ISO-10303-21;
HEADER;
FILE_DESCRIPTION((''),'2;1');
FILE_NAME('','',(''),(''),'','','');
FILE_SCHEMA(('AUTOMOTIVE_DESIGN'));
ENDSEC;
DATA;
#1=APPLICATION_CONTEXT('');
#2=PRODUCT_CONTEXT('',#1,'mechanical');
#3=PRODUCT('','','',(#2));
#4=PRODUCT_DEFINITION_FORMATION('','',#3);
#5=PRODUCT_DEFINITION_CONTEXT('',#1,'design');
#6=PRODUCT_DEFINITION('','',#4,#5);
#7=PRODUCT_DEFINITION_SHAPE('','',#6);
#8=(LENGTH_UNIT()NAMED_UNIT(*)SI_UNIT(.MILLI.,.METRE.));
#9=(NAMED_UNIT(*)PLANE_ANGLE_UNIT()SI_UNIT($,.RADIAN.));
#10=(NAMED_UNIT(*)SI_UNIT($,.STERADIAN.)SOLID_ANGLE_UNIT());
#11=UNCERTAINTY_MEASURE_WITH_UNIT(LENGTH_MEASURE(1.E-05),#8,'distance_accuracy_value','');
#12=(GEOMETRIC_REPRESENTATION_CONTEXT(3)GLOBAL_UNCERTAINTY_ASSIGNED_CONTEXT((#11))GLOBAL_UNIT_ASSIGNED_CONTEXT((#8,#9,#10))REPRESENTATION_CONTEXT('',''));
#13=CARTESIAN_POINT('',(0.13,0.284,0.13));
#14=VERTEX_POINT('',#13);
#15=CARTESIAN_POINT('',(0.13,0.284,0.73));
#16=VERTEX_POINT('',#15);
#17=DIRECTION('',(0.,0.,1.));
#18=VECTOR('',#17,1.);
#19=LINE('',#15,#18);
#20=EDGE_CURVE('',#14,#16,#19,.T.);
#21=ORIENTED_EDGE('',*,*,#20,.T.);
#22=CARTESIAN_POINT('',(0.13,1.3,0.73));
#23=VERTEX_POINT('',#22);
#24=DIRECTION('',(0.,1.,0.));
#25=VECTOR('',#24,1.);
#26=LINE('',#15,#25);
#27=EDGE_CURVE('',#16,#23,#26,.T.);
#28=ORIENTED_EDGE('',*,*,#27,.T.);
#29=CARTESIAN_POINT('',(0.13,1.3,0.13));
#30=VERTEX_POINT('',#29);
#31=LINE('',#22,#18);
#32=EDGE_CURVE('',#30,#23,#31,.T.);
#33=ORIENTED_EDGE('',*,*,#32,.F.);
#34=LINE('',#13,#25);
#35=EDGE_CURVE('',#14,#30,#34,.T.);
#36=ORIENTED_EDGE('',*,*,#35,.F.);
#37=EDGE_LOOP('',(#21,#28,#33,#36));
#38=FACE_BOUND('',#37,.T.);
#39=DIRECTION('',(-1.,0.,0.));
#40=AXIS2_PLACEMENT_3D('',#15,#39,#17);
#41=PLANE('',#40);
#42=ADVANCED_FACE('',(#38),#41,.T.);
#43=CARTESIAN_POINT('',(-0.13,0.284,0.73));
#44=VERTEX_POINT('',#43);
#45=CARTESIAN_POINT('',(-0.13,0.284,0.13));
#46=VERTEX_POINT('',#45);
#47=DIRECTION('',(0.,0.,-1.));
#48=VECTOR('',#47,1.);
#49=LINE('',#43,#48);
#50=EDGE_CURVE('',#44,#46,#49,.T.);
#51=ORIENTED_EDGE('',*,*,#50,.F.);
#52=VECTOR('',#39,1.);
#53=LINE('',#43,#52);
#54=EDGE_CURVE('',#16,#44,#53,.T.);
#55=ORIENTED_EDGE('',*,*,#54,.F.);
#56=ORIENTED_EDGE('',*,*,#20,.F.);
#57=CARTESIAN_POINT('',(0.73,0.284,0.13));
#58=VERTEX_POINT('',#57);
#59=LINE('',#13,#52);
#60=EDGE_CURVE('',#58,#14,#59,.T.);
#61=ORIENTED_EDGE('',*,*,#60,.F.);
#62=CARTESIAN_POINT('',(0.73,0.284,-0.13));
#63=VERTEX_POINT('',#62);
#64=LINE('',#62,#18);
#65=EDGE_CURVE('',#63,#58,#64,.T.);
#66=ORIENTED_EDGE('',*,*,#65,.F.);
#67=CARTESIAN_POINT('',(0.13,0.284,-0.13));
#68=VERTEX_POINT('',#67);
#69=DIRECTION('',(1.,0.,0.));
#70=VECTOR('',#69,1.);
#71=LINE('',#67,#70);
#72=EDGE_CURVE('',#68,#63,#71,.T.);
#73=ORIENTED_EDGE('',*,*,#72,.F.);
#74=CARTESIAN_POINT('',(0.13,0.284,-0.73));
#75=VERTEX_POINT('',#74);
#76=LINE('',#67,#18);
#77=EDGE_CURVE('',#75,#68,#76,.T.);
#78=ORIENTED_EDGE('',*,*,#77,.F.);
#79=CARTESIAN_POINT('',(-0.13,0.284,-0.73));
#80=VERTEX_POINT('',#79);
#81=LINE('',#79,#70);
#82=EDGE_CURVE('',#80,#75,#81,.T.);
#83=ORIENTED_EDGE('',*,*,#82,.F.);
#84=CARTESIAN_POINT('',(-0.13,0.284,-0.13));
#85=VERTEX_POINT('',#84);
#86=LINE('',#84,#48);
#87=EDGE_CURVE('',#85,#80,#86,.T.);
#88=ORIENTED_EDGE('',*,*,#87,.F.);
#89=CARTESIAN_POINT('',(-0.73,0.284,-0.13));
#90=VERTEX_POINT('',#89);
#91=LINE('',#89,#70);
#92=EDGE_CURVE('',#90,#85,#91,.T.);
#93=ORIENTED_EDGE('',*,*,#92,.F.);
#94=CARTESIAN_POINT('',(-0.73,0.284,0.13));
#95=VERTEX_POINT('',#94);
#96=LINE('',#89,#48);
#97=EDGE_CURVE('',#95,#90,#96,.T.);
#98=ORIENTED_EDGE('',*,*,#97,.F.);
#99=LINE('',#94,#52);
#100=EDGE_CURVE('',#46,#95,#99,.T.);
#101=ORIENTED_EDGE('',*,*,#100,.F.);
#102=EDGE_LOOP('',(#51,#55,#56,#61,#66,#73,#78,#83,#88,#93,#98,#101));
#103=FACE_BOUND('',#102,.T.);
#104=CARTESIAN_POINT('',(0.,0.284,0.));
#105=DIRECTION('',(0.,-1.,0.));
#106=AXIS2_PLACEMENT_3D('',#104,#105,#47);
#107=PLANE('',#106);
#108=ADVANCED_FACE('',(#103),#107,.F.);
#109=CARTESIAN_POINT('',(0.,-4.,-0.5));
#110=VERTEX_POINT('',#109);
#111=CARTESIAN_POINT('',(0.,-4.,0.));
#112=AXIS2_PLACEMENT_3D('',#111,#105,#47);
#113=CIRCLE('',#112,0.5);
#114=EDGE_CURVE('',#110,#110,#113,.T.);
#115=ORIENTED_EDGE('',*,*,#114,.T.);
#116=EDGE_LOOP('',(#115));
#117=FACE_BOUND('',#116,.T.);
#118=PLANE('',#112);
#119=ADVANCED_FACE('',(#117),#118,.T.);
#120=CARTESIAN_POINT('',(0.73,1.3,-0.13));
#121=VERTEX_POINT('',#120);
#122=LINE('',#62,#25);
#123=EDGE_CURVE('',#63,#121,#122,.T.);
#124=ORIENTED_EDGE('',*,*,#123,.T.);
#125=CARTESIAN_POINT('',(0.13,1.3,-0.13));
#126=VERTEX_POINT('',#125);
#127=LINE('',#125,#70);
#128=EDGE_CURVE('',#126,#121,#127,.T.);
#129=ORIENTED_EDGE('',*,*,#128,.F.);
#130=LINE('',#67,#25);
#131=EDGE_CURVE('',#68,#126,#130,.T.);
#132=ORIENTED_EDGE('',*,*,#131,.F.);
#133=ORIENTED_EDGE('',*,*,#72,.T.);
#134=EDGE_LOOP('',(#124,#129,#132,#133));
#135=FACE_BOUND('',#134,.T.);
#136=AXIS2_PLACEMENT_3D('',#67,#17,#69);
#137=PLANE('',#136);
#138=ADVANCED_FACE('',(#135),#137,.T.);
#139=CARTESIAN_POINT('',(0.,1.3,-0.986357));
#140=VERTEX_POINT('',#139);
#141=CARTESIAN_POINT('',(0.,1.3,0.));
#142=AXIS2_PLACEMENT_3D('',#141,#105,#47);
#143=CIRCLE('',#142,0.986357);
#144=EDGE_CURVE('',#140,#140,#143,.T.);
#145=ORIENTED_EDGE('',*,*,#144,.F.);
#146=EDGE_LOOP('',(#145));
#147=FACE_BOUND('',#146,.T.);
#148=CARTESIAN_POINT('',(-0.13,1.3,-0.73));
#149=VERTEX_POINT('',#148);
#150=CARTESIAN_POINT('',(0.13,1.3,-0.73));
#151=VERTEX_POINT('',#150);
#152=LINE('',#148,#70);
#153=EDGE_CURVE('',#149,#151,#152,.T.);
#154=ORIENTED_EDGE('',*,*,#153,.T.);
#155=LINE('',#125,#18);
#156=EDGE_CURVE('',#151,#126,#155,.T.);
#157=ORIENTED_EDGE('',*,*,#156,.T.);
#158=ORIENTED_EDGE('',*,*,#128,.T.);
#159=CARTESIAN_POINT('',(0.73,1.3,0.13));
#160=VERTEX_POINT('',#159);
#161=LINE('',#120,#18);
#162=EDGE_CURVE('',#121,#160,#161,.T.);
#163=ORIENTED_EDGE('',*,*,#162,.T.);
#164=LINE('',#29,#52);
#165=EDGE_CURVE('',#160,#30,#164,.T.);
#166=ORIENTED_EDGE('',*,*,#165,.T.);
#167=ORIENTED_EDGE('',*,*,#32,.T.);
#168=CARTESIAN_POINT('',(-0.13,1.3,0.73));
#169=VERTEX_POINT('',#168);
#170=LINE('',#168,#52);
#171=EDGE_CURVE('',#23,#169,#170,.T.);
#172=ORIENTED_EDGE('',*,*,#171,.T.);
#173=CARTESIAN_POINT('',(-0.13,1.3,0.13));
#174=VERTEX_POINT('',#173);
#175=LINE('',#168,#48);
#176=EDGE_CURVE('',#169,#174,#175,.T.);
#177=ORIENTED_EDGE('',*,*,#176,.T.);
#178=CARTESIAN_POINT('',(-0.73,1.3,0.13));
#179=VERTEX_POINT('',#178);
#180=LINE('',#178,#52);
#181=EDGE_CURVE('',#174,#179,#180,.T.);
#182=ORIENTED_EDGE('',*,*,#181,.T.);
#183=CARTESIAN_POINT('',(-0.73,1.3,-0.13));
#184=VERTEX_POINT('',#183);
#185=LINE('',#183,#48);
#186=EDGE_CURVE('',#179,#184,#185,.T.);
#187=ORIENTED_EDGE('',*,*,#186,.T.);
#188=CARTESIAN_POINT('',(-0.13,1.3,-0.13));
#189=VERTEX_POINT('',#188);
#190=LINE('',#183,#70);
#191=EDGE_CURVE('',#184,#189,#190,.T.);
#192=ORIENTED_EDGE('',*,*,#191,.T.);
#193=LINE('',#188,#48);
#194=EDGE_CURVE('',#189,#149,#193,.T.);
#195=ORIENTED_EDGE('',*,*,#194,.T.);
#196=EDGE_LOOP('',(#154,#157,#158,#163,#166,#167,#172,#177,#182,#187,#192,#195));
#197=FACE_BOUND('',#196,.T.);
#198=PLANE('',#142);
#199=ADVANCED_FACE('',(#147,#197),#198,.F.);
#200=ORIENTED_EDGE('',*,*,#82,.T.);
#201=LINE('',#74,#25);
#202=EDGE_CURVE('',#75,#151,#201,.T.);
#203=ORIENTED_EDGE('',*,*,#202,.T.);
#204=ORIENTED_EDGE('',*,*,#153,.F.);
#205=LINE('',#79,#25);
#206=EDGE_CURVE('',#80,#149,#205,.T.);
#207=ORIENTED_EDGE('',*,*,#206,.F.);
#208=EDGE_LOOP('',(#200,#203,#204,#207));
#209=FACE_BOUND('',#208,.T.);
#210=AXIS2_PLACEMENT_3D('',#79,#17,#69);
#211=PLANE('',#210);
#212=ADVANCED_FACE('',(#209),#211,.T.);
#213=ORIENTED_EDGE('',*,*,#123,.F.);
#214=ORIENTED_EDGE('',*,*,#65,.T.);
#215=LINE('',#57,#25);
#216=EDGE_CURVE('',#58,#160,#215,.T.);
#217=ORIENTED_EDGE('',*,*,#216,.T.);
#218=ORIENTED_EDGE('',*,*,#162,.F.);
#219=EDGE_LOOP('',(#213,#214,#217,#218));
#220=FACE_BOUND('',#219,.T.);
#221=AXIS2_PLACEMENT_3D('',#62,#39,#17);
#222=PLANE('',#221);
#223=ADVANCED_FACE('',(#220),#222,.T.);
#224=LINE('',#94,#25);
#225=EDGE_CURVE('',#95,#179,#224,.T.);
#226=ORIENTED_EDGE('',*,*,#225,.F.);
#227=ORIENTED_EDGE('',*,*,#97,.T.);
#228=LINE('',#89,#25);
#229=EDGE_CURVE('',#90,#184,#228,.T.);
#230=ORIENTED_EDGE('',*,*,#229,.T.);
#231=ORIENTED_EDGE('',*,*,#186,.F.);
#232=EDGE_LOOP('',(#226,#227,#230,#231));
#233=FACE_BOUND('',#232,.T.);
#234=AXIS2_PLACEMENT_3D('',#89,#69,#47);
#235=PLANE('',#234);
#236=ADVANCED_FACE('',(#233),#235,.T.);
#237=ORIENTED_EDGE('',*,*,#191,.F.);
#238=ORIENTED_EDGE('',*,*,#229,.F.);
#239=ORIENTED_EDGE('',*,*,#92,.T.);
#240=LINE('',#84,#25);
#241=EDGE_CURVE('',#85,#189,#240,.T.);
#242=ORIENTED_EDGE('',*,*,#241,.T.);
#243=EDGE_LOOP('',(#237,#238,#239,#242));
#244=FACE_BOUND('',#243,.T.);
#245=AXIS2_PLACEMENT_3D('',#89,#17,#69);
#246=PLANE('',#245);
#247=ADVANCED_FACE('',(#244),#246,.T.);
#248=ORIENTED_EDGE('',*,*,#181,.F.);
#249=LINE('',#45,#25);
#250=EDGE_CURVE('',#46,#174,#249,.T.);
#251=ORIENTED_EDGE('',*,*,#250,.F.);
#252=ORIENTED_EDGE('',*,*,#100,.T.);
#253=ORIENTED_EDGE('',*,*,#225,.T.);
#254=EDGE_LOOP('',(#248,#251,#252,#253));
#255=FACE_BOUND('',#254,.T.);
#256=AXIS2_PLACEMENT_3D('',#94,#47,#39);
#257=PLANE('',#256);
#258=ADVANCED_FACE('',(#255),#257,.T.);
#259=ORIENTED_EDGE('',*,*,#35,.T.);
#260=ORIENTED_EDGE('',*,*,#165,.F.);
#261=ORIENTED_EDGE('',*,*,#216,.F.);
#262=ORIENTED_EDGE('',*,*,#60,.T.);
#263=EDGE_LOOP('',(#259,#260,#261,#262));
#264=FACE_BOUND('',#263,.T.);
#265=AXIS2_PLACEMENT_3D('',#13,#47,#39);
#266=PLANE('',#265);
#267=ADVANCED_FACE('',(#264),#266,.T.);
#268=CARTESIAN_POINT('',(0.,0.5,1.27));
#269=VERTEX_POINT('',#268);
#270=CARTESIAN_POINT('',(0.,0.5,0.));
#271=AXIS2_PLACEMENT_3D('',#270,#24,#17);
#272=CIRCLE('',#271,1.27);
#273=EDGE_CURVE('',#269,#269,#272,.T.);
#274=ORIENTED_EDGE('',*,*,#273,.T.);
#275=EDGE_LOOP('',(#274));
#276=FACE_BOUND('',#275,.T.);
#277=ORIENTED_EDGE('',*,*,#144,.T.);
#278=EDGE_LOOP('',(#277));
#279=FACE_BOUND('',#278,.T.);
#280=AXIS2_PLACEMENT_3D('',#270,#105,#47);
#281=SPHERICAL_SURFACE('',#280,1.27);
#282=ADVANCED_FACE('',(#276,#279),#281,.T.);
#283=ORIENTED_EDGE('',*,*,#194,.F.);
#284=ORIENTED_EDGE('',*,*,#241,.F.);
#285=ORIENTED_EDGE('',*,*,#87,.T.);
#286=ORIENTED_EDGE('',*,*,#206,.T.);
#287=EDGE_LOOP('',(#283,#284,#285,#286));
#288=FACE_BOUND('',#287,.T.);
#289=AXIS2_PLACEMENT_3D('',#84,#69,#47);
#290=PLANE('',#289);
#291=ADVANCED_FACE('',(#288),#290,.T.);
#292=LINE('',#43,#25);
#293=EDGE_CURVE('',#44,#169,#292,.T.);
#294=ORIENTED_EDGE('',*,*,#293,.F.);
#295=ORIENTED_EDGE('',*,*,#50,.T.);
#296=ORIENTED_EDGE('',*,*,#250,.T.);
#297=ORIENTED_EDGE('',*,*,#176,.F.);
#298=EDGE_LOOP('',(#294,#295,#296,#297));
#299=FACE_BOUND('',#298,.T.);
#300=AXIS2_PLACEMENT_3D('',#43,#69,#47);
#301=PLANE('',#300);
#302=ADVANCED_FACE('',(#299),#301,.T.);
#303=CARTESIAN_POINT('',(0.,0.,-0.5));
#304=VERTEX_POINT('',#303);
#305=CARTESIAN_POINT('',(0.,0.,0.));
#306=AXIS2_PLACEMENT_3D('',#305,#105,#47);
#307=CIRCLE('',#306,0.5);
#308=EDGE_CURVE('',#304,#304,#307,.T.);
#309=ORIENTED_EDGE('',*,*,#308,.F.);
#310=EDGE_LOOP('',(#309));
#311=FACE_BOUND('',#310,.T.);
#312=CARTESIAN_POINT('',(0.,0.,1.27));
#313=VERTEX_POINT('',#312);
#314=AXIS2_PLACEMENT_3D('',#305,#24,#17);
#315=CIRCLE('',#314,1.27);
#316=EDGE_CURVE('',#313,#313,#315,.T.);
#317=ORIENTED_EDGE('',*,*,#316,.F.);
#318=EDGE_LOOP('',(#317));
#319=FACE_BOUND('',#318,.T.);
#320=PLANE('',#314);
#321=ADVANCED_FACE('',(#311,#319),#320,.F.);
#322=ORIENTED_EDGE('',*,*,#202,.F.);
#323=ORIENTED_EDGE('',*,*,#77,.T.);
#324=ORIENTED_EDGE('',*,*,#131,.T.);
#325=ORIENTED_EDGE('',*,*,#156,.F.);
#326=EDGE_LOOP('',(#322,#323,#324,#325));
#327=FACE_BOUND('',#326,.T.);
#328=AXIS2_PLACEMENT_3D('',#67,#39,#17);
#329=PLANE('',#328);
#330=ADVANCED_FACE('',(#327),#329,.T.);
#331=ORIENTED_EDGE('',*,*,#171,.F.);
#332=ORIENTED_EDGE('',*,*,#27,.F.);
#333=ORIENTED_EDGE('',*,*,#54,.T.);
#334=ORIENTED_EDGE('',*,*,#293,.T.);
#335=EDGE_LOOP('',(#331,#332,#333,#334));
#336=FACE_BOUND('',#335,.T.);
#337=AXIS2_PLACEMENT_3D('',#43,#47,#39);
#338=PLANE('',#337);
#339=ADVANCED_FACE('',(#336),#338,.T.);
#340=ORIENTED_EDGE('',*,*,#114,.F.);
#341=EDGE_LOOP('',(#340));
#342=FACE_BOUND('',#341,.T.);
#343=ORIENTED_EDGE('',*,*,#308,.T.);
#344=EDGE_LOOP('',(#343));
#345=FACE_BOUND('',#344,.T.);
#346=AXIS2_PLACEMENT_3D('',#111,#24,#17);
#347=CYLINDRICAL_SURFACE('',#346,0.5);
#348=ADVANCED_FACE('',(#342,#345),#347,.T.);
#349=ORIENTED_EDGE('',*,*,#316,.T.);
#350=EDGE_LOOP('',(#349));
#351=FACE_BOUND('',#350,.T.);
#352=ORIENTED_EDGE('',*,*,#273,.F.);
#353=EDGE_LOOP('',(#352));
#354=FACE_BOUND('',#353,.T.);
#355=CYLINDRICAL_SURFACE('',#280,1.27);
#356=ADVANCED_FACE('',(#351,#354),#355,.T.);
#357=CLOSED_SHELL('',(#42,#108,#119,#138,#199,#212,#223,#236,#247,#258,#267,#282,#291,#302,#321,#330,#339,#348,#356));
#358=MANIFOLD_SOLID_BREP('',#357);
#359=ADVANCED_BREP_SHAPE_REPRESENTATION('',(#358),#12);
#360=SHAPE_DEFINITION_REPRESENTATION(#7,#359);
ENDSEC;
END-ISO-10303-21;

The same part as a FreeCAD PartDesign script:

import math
import FreeCAD as App
import Part
import Sketcher
Q = App.Units.Quantity


def add_polygon(sketch, points):
    """Adds a closed chain of lines whose ends are joined by coincident constraints."""
    first, n = sketch.GeometryCount, len(points)
    for a, b in zip(points, points[1:] + points[:1]):
        sketch.addGeometry(Part.LineSegment(App.Vector(*a, 0), App.Vector(*b, 0)), False)
    for i in range(n):
        sketch.addConstraint(Sketcher.Constraint("Coincident", first + i, 2, first + (i + 1) % n, 1))

doc = App.newDocument("Part")
params = doc.addObject("Spreadsheet::Sheet", "Params")
for row, (alias, value) in enumerate([
    ("sketch1_diameter", "2.54 mm"),
    ("pad1_length", "0.5 mm"),
    ("sketch2_radius", "1.27 mm"),
    ("revolution_angle", "180 deg"),
    ("sketch3_diameter", "5 mm"),
    ("pocket1_length", "1.016 mm"),
    ("sketch4_width", "0.6 mm"),
    ("sketch4_width2", "0.26 mm"),
    ("pocket2_length", "1.016 mm"),
    ("sketch5_diameter", "1 mm"),
    ("pad2_length", "4 mm"),
], start=1):
    params.set(f"A{row}", alias)
    params.set(f"B{row}", "=" + value)
    params.setAlias(f"B{row}", alias)

body = doc.addObject("PartDesign::Body", "Body")

# Sketch on XZ plane
sketch1 = body.newObject("Sketcher::SketchObject", "Sketch")
sketch1.AttachmentSupport = (doc.getObject("XZ_Plane"), [""])
sketch1.MapMode = "FlatFace"
sketch1.addGeometry(Part.Circle(App.Vector(0, 0, 0), App.Vector(0, 0, 1), 1.3), False)
sketch1.addConstraint([
    Sketcher.Constraint("Coincident", 0, 3, -1, 1),
    Sketcher.Constraint("Diameter", 0, Q("2.54 mm")),
])
sketch1.setExpression("Constraints[1]", "Params.sketch1_diameter")
pad1 = body.newObject("PartDesign::Pad", "Pad")
pad1.Profile = sketch1
pad1.setExpression("Length", "Params.pad1_length")
pad1.Reversed = True

# Sketch on XZ plane
sketch2 = body.newObject("Sketcher::SketchObject", "Sketch001")
sketch2.AttachmentSupport = (doc.getObject("XZ_Plane"), [""])
sketch2.MapMode = "FlatFace"
sketch2.AttachmentOffset = App.Placement(App.Vector(0, 0, -0.5), App.Rotation())
sketch2.addGeometry([
    Part.LineSegment(App.Vector(0, 1.3, 0), App.Vector(0, -1.3, 0)),
    Part.ArcOfCircle(Part.Circle(App.Vector(0, 0, 0), App.Vector(0, 0, 1), 1.3), math.radians(90), math.radians(270)),
], False)
sketch2.addConstraint([
    Sketcher.Constraint("Coincident", 0, 1, 1, 1),
    Sketcher.Constraint("Coincident", 1, 2, 0, 2),
    Sketcher.Constraint("Vertical", 0),
    Sketcher.Constraint("Coincident", 1, 3, -1, 1),
    Sketcher.Constraint("PointOnObject", 0, 1, -2),
    Sketcher.Constraint("Radius", 1, Q("1.27 mm")),
])
sketch2.setExpression("Constraints[5]", "Params.sketch2_radius")
revolution = body.newObject("PartDesign::Revolution", "Revolution")
revolution.Profile = sketch2
revolution.ReferenceAxis = (sketch2, ["V_Axis"])
revolution.setExpression("Angle", "Params.revolution_angle")
revolution.Reversed = True

# Sketch on XZ plane
sketch3 = body.newObject("Sketcher::SketchObject", "Sketch002")
sketch3.AttachmentSupport = (doc.getObject("XZ_Plane"), [""])
sketch3.MapMode = "FlatFace"
sketch3.AttachmentOffset = App.Placement(App.Vector(0, 0, -1.3), App.Rotation())
sketch3.addGeometry(Part.Circle(App.Vector(0, 0, 0), App.Vector(0, 0, 1), 2.5), False)
sketch3.addConstraint([
    Sketcher.Constraint("Coincident", 0, 3, -1, 1),
    Sketcher.Constraint("Diameter", 0, Q("5 mm")),
])
sketch3.setExpression("Constraints[1]", "Params.sketch3_diameter")
pocket1 = body.newObject("PartDesign::Pocket", "Pocket")
pocket1.Profile = sketch3
pocket1.setExpression("Length", "Params.pocket1_length")

# Sketch on XZ plane
sketch4 = body.newObject("Sketcher::SketchObject", "Sketch003")
sketch4.AttachmentSupport = (doc.getObject("XZ_Plane"), [""])
sketch4.MapMode = "FlatFace"
sketch4.AttachmentOffset = App.Placement(App.Vector(0, 0, -1.3), App.Rotation())
add_polygon(sketch4, [(-0.13, -0.13), (-0.13, -0.73), (0.13, -0.73), (0.13, -0.13), (0.73, -0.13), (0.73, 0.13), (0.13, 0.13), (0.13, 0.73), (-0.13, 0.73), (-0.13, 0.13), (-0.73, 0.13), (-0.73, -0.13)])  # lines 0-11
sketch4.addConstraint([
    Sketcher.Constraint("Vertical", 0),
    Sketcher.Constraint("Horizontal", 1),
    Sketcher.Constraint("Vertical", 2),
    Sketcher.Constraint("Horizontal", 3),
    Sketcher.Constraint("Vertical", 4),
    Sketcher.Constraint("Horizontal", 5),
    Sketcher.Constraint("Vertical", 6),
    Sketcher.Constraint("Horizontal", 7),
    Sketcher.Constraint("Vertical", 8),
    Sketcher.Constraint("Horizontal", 9),
    Sketcher.Constraint("Vertical", 10),
    Sketcher.Constraint("Horizontal", 11),
    Sketcher.Constraint("Symmetric", 0, 2, 6, 2, -1, 1),
    Sketcher.Constraint("Symmetric", 2, 2, 8, 2, -1, 1),
    Sketcher.Constraint("Symmetric", 4, 2, 10, 2, -1, 1),
    Sketcher.Constraint("Symmetric", 5, 2, 8, 2, -2),
    Sketcher.Constraint("Equal", 11, 0),
    Sketcher.Constraint("Equal", 7, 4),
    Sketcher.Constraint("DistanceX", 3, 1, 3, 2, Q("0.6 mm")),
    Sketcher.Constraint("DistanceX", 1, 1, 1, 2, Q("0.26 mm")),
])
sketch4.setExpression("Constraints[30]", "Params.sketch4_width")
sketch4.setExpression("Constraints[31]", "Params.sketch4_width2")
pocket2 = body.newObject("PartDesign::Pocket", "Pocket001")
pocket2.Profile = sketch4
pocket2.setExpression("Length", "Params.pocket2_length")
pocket2.Reversed = True

# Sketch on XZ plane
sketch5 = body.newObject("Sketcher::SketchObject", "Sketch004")
sketch5.AttachmentSupport = (doc.getObject("XZ_Plane"), [""])
sketch5.MapMode = "FlatFace"
sketch5.addGeometry(Part.Circle(App.Vector(0, 0, 0), App.Vector(0, 0, 1), 0.5), False)
sketch5.addConstraint([
    Sketcher.Constraint("Coincident", 0, 3, -1, 1),
    Sketcher.Constraint("Diameter", 0, Q("1 mm")),
])
sketch5.setExpression("Constraints[1]", "Params.sketch5_diameter")
pad2 = body.newObject("PartDesign::Pad", "Pad001")
pad2.Profile = sketch5
pad2.setExpression("Length", "Params.pad2_length")

doc.recompute()
